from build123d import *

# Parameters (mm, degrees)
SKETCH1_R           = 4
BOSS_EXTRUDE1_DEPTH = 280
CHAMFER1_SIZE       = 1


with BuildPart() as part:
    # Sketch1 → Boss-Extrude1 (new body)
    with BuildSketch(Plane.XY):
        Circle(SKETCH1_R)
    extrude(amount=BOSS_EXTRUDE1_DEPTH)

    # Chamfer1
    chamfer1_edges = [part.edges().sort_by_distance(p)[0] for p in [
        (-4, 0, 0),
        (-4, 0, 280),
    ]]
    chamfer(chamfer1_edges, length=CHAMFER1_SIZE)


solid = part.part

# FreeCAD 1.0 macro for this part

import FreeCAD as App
import Part
import Sketcher
from FreeCAD import Vector


def edges_at(feature, points):
    """Names of the edges that pass closest to the given points."""
    edges = feature.Shape.Edges
    near = lambda p: min(range(len(edges)), key=lambda i: edges[i].distToShape(Part.Vertex(*p))[0])
    return sorted({f"Edge{near(p) + 1}" for p in points})

doc = App.newDocument("Part")
body = doc.addObject("PartDesign::Body", "Body")

sketch1 = body.newObject("Sketcher::SketchObject", "Sketch")
sketch1.AttachmentSupport = (doc.getObject("XY_Plane"), [""])
sketch1.MapMode = "FlatFace"
sketch1.addGeometry(Part.Circle(Vector(0, 0, 0), Vector(0, 0, 1), 4), False)
sketch1.addConstraint(Sketcher.Constraint("Coincident", 0, 3, -1, 1))
sketch1.addConstraint(Sketcher.Constraint("Diameter", 0, 8.0))
pad1 = body.newObject("PartDesign::Pad", "Pad")
pad1.Profile = sketch1
pad1.Length = 280
doc.recompute()

chamfer = body.newObject("PartDesign::Chamfer", "Chamfer")
chamfer.Base = (pad1, edges_at(pad1, [(-4, 0, 0), (-4, 0, 280)]))
chamfer.Size = 1

doc.recompute()
